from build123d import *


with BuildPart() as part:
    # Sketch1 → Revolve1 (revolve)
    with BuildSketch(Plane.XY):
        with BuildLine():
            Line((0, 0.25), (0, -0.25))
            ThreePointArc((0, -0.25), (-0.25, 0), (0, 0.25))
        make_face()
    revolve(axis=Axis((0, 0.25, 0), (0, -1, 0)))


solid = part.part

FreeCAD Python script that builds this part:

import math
import FreeCAD as App
import Part
import Sketcher
from FreeCAD import Vector

doc = App.newDocument("Part")
body = doc.addObject("PartDesign::Body", "Body")

# Sketch on XY plane
sketch1 = body.newObject("Sketcher::SketchObject", "Sketch")
sketch1.AttachmentSupport = (doc.getObject("XY_Plane"), [""])
sketch1.MapMode = "FlatFace"
sketch1.addGeometry(Part.LineSegment(Vector(0, -0.25, 0), Vector(0, 0.25, 0)), False)
sketch1.addGeometry(Part.ArcOfCircle(Part.Circle(Vector(0, 0, 0), Vector(0, 0, 1), 0.25), math.radians(90), math.radians(270)), False)
sketch1.addConstraint(Sketcher.Constraint("Coincident", 0, 1, 1, 2))
sketch1.addConstraint(Sketcher.Constraint("Coincident", 1, 1, 0, 2))
sketch1.addConstraint(Sketcher.Constraint("Vertical", 0))
sketch1.addConstraint(Sketcher.Constraint("Coincident", 1, 3, -1, 1))
sketch1.addConstraint(Sketcher.Constraint("PointOnObject", 0, 1, -2))
sketch1.addConstraint(Sketcher.Constraint("Radius", 1, 0.25))
revolution = body.newObject("PartDesign::Revolution", "Revolution")
revolution.Profile = sketch1
revolution.ReferenceAxis = (sketch1, ["V_Axis"])
revolution.Angle = 360

doc.recompute()
